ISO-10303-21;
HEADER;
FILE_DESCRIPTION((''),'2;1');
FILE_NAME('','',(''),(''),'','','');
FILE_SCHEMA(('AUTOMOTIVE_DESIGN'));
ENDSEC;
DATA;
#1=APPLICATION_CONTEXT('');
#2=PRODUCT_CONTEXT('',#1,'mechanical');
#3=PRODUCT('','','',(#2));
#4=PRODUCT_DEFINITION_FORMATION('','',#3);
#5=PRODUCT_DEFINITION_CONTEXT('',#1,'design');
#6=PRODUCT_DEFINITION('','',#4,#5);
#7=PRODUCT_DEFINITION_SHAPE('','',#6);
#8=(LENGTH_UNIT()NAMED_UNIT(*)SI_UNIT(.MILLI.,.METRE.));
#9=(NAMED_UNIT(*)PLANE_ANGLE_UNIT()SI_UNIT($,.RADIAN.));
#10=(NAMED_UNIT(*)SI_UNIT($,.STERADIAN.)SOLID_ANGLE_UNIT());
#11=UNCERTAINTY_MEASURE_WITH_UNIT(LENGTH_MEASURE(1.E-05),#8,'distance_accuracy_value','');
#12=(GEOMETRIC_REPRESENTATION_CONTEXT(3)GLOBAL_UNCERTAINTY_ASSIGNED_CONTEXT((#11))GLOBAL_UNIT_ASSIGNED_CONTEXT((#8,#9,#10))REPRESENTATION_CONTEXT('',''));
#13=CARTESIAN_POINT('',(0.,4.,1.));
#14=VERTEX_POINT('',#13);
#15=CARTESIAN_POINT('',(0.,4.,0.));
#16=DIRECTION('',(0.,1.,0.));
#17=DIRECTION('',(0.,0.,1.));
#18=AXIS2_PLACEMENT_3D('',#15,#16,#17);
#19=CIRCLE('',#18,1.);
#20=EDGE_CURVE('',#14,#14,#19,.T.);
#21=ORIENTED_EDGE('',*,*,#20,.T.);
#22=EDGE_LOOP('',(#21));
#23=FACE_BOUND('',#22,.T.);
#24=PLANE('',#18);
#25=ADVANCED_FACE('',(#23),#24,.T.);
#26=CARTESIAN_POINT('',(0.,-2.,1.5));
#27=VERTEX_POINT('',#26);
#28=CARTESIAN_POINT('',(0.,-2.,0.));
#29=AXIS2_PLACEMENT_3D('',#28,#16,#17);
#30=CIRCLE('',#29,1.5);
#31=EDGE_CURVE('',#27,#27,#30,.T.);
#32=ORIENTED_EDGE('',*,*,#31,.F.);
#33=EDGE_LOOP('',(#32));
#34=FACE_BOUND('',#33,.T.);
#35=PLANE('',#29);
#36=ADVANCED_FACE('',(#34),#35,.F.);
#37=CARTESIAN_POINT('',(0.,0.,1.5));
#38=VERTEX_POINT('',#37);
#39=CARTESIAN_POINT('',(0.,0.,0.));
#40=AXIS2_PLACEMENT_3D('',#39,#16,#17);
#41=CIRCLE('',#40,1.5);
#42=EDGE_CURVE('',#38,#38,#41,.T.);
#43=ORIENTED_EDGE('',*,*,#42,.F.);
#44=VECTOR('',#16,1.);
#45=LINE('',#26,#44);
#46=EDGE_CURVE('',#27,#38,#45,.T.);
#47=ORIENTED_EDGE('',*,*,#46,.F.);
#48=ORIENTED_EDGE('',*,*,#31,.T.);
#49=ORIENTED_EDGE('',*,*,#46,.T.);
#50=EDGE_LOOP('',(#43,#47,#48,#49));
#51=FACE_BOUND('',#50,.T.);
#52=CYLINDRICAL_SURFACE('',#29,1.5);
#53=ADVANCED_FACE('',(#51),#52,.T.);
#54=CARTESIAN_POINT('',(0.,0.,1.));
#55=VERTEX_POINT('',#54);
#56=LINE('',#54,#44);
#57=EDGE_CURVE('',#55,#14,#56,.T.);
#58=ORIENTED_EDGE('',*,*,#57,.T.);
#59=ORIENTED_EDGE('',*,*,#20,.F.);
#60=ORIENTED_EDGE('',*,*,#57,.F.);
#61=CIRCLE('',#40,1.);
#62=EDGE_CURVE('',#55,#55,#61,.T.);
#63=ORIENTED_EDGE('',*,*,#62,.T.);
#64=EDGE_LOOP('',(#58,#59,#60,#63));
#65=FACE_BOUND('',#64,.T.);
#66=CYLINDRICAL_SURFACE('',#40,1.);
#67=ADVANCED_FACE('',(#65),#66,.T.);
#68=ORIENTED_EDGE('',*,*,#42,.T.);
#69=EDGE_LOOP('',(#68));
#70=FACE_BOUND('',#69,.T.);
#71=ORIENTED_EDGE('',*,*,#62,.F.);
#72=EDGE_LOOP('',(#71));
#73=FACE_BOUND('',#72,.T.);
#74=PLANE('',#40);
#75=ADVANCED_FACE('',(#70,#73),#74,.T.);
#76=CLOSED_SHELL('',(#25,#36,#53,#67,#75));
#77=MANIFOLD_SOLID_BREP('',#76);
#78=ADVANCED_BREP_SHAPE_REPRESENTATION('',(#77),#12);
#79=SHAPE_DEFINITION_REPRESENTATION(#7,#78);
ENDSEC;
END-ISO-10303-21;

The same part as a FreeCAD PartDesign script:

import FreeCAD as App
import Part
import Sketcher

doc = App.newDocument("Part")
params = doc.addObject("Spreadsheet::Sheet", "Params")
for row, (alias, value) in enumerate([
    ("sketch1_width", "6 mm"),
    ("sketch1_width2", "4 mm"),
    ("sketch1_height", "1 mm"),
    ("sketch1_height2", "1.5 mm"),
    ("revolution_angle", "360 deg"),
], start=1):
    params.set(f"A{row}", alias)
    params.set(f"B{row}", "=" + value)
    params.setAlias(f"B{row}", alias)

body = doc.addObject("PartDesign::Body", "Body")

sketch1 = doc.addObject("Sketcher::SketchObject", "Sketch")
body.addObject(sketch1)
sketch1.AttachmentSupport = (doc.YZ_Plane, [""])
sketch1.MapMode = "FlatFace"
sketch1.addGeometry(Part.LineSegment(App.Vector(-2, 1.5, 0), App.Vector(-2, 0, 0)), False)
sketch1.addGeometry(Part.LineSegment(App.Vector(-2, 0, 0), App.Vector(4, 0, 0)), False)
sketch1.addGeometry(Part.LineSegment(App.Vector(4, 0, 0), App.Vector(4, 1, 0)), False)
sketch1.addGeometry(Part.LineSegment(App.Vector(4, 1, 0), App.Vector(0, 1, 0)), False)
sketch1.addGeometry(Part.LineSegment(App.Vector(0, 1, 0), App.Vector(0, 1.5, 0)), False)
sketch1.addGeometry(Part.LineSegment(App.Vector(0, 1.5, 0), App.Vector(-2, 1.5, 0)), False)
sketch1.addConstraint(Sketcher.Constraint("Coincident", 0, 2, 1, 1))
sketch1.addConstraint(Sketcher.Constraint("Coincident", 1, 2, 2, 1))
sketch1.addConstraint(Sketcher.Constraint("Coincident", 2, 2, 3, 1))
sketch1.addConstraint(Sketcher.Constraint("Coincident", 3, 2, 4, 1))
sketch1.addConstraint(Sketcher.Constraint("Coincident", 4, 2, 5, 1))
sketch1.addConstraint(Sketcher.Constraint("Coincident", 5, 2, 0, 1))
sketch1.addConstraint(Sketcher.Constraint("Vertical", 0))
sketch1.addConstraint(Sketcher.Constraint("Horizontal", 1))
sketch1.addConstraint(Sketcher.Constraint("Vertical", 2))
sketch1.addConstraint(Sketcher.Constraint("Horizontal", 3))
sketch1.addConstraint(Sketcher.Constraint("Vertical", 4))
sketch1.addConstraint(Sketcher.Constraint("Horizontal", 5))
sketch1.addConstraint(Sketcher.Constraint("PointOnObject", 0, 2, -1))
sketch1.addConstraint(Sketcher.Constraint("PointOnObject", 3, 2, -2))
sketch1.addConstraint(Sketcher.Constraint("DistanceX", 1, 1, 1, 2, 6.0))
sketch1.addConstraint(Sketcher.Constraint("DistanceX", 3, 2, 3, 1, 4.0))
sketch1.addConstraint(Sketcher.Constraint("DistanceY", 2, 1, 2, 2, 1.0))
sketch1.addConstraint(Sketcher.Constraint("DistanceY", 0, 2, 0, 1, 1.5))
sketch1.setExpression("Constraints[14]", "Params.sketch1_width")
sketch1.setExpression("Constraints[15]", "Params.sketch1_width2")
sketch1.setExpression("Constraints[16]", "Params.sketch1_height")
sketch1.setExpression("Constraints[17]", "Params.sketch1_height2")
revolution = doc.addObject("PartDesign::Revolution", "Revolution")
body.addObject(revolution)
revolution.Profile = sketch1
revolution.ReferenceAxis = (sketch1, ["H_Axis"])
revolution.setExpression("Angle", "Params.revolution_angle")

doc.recompute()
